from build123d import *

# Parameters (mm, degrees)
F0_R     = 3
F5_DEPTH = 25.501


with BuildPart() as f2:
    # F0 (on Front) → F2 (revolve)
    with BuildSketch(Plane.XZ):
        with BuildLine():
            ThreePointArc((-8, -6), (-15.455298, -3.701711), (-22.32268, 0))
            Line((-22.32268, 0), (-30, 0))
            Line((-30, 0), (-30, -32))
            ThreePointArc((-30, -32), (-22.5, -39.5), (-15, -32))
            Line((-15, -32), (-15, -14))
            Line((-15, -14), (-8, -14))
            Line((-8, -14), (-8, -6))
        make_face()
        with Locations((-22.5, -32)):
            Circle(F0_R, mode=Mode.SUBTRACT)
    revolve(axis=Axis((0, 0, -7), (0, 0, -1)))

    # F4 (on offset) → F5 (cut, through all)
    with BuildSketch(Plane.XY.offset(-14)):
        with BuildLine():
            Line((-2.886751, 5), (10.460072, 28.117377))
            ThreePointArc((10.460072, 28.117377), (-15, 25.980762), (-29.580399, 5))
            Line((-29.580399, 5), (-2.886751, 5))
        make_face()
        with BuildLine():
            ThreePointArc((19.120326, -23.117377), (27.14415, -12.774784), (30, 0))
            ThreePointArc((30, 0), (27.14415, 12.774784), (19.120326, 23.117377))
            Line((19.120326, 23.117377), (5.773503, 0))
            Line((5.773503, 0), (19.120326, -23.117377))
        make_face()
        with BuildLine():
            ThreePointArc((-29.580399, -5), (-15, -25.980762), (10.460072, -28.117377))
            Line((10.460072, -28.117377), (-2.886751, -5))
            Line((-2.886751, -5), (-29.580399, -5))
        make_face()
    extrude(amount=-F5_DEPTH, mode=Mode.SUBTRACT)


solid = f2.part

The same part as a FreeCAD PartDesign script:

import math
import FreeCAD as App
import Part
import Sketcher

V = App.Vector
Q = App.Units.Quantity

doc = App.newDocument("Part")
body = doc.addObject("PartDesign::Body", "Body")

sketch1 = body.newObject("Sketcher::SketchObject", "Sketch")
sketch1.AttachmentSupport = (doc.getObject("XZ_Plane"), [""])
sketch1.MapMode = "FlatFace"
sketch1.addGeometry(Part.ArcOfCircle(Part.Circle(V(0, 33.2, 0), V(0, 0, 1), 40), math.radians(-124), math.radians(-102)), False)
sketch1.addGeometry(Part.LineSegment(V(-22.3, 0, 0), V(-30, 0, 0)), False)
sketch1.addGeometry(Part.LineSegment(V(-30, 0, 0), V(-30, -32, 0)), False)
sketch1.addGeometry(Part.ArcOfCircle(Part.Circle(V(-22.5, -32, 0), V(0, 0, 1), 7.5), math.radians(180), math.radians(360)), False)
sketch1.addGeometry(Part.LineSegment(V(-15, -32, 0), V(-15, -14, 0)), False)
sketch1.addGeometry(Part.LineSegment(V(-15, -14, 0), V(-8, -14, 0)), False)
sketch1.addGeometry(Part.LineSegment(V(-8, -14, 0), V(-8, -6, 0)), False)
sketch1.addGeometry(Part.Circle(V(-22.5, -32, 0), V(0, 0, 1), 3), False)
sketch1.addConstraint(Sketcher.Constraint("Coincident", 0, 1, 1, 1))
sketch1.addConstraint(Sketcher.Constraint("Coincident", 1, 2, 2, 1))
sketch1.addConstraint(Sketcher.Constraint("Tangent", 2, 2, 3, 1))
sketch1.addConstraint(Sketcher.Constraint("Tangent", 3, 2, 4, 1))
sketch1.addConstraint(Sketcher.Constraint("Coincident", 4, 2, 5, 1))
sketch1.addConstraint(Sketcher.Constraint("Coincident", 5, 2, 6, 1))
sketch1.addConstraint(Sketcher.Constraint("Coincident", 6, 2, 0, 2))
sketch1.addConstraint(Sketcher.Constraint("Horizontal", 1))
sketch1.addConstraint(Sketcher.Constraint("Vertical", 2))
sketch1.addConstraint(Sketcher.Constraint("Vertical", 4))
sketch1.addConstraint(Sketcher.Constraint("Horizontal", 5))
sketch1.addConstraint(Sketcher.Constraint("Vertical", 6))
sketch1.addConstraint(Sketcher.Constraint("Coincident", 7, 3, 3, 3))
sketch1.addConstraint(Sketcher.Constraint("PointOnObject", 0, 1, -1))
sketch1.addConstraint(Sketcher.Constraint("Diameter", 7, 6.0))
sketch1.addConstraint(Sketcher.Constraint("Radius", 3, 7.5))
sketch1.addConstraint(Sketcher.Constraint("DistanceX", 5, 1, 5, 2, 7.0))
sketch1.addConstraint(Sketcher.Constraint("DistanceY", 2, 2, 2, 1, 32.0))
sketch1.addConstraint(Sketcher.Constraint("DistanceY", 4, 1, 4, 2, 18.0))
sketch1.addConstraint(Sketcher.Constraint("DistanceY", 6, 1, 6, 2, 8.0))
sketch1.addConstraint(Sketcher.Constraint("DistanceX", 1, 2, -1, 1, 30.0))
sketch1.addConstraint(Sketcher.Constraint("Radius", 0, 39.999979))
sketch1.addConstraint(Sketcher.Constraint("DistanceX", 1, 2, 1, 1, 7.67732))
revolution = body.newObject("PartDesign::Revolution", "Revolution")
revolution.Profile = sketch1
revolution.ReferenceAxis = (sketch1, ["V_Axis"])
revolution.Angle = 360

sketch2 = body.newObject("Sketcher::SketchObject", "Sketch001")
sketch2.AttachmentSupport = (doc.getObject("XY_Plane"), [""])
sketch2.MapMode = "FlatFace"
sketch2.AttachmentOffset = App.Placement(V(0, 0, -14), App.Rotation())
sketch2.addGeometry(Part.LineSegment(V(-3, 5, 0), V(10, 28, 0)), False)
sketch2.addGeometry(Part.ArcOfCircle(Part.Circle(V(0, 0, 0), V(0, 0, 1), 30), math.radians(70), math.radians(170)), False)
sketch2.addGeometry(Part.LineSegment(V(-30, 5, 0), V(-3, 5, 0)), False)
sketch2.addGeometry(Part.ArcOfCircle(Part.Circle(V(0, 0, 0), V(0, 0, 1), 30), math.radians(-50), math.radians(0)), False)
sketch2.addGeometry(Part.ArcOfCircle(Part.Circle(V(0, 0, 0), V(0, 0, 1), 30), math.radians(0), math.radians(50)), False)
sketch2.addGeometry(Part.LineSegment(V(19, 23, 0), V(6, 0, 0)), False)
sketch2.addGeometry(Part.LineSegment(V(6, 0, 0), V(19, -23, 0)), False)
sketch2.addGeometry(Part.ArcOfCircle(Part.Circle(V(0, 0, 0), V(0, 0, 1), 30), math.radians(-170), math.radians(-70)), False)
sketch2.addGeometry(Part.LineSegment(V(10, -28, 0), V(-3, -5, 0)), False)
sketch2.addGeometry(Part.LineSegment(V(-3, -5, 0), V(-30, -5, 0)), False)
sketch2.addConstraint(Sketcher.Constraint("Coincident", 0, 2, 1, 1))
sketch2.addConstraint(Sketcher.Constraint("Coincident", 1, 2, 2, 1))
sketch2.addConstraint(Sketcher.Constraint("Coincident", 2, 2, 0, 1))
sketch2.addConstraint(Sketcher.Constraint("Tangent", 3, 2, 4, 1))
sketch2.addConstraint(Sketcher.Constraint("Coincident", 4, 2, 5, 1))
sketch2.addConstraint(Sketcher.Constraint("Coincident", 5, 2, 6, 1))
sketch2.addConstraint(Sketcher.Constraint("Coincident", 6, 2, 3, 1))
sketch2.addConstraint(Sketcher.Constraint("Coincident", 7, 2, 8, 1))
sketch2.addConstraint(Sketcher.Constraint("Coincident", 8, 2, 9, 1))
sketch2.addConstraint(Sketcher.Constraint("Coincident", 9, 2, 7, 1))
sketch2.addConstraint(Sketcher.Constraint("Horizontal", 2))
sketch2.addConstraint(Sketcher.Constraint("Horizontal", 9))
sketch2.addConstraint(Sketcher.Constraint("Coincident", 1, 3, -1, 1))
sketch2.addConstraint(Sketcher.Constraint("Coincident", 3, 3, -1, 1))
sketch2.addConstraint(Sketcher.Constraint("Coincident", 7, 3, -1, 1))
sketch2.addConstraint(Sketcher.Constraint("Equal", 1, 3))
sketch2.addConstraint(Sketcher.Constraint("Equal", 3, 4))
sketch2.addConstraint(Sketcher.Constraint("Equal", 4, 7))
sketch2.addConstraint(Sketcher.Constraint("Symmetric", 2, 2, 8, 2, -1))
sketch2.addConstraint(Sketcher.Constraint("PointOnObject", 3, 2, -1))
sketch2.addConstraint(Sketcher.Constraint("PointOnObject", 5, 2, -1))
sketch2.addConstraint(Sketcher.Constraint("Parallel", 0, 5))
sketch2.addConstraint(Sketcher.Constraint("Parallel", 6, 8))
sketch2.addConstraint(Sketcher.Constraint("Vertical", 4, 2, 6, 2))
sketch2.addConstraint(Sketcher.Constraint("Equal", 0, 5))
sketch2.addConstraint(Sketcher.Constraint("Radius", 1, 30.0))
sketch2.addConstraint(Sketcher.Constraint("Angle", 0, Q("60.000002 deg")))
sketch2.addConstraint(Sketcher.Constraint("DistanceY", -1, 1, 1, 2, 5.0))
sketch2.addConstraint(Sketcher.Constraint("DistanceX", 2, 1, 2, 2, 26.693648))
pocket1 = body.newObject("PartDesign::Pocket", "Pocket")
pocket1.Profile = sketch2
pocket1.Type = "ThroughAll"

doc.recompute()
